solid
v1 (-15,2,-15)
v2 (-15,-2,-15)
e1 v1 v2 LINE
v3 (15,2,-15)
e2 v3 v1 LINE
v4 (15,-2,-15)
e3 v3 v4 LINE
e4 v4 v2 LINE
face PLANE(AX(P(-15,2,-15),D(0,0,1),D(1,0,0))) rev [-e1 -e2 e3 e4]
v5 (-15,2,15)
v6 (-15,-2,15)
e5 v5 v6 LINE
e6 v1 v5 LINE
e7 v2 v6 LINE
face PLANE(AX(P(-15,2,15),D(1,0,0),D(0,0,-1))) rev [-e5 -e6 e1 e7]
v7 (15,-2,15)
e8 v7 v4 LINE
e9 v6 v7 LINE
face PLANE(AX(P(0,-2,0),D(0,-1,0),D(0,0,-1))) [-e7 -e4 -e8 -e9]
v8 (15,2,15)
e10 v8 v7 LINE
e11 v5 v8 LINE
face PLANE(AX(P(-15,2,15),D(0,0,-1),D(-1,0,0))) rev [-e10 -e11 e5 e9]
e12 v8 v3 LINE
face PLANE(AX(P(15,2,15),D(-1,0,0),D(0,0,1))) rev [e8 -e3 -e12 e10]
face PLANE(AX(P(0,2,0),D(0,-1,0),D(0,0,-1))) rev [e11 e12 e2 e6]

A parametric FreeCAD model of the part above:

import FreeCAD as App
import Part
import Sketcher

doc = App.newDocument("Part")
body = doc.addObject("PartDesign::Body", "Body")

# Sketch on XZ plane
sketch1 = body.newObject("Sketcher::SketchObject", "Sketch")
sketch1.AttachmentSupport = (doc.getObject("XZ_Plane"), [""])
sketch1.MapMode = "FlatFace"
sketch1.addGeometry([
    Part.LineSegment(App.Vector(-15, -15, 0), App.Vector(-15, 15, 0)),
    Part.LineSegment(App.Vector(-15, 15, 0), App.Vector(15, 15, 0)),
    Part.LineSegment(App.Vector(15, 15, 0), App.Vector(15, -15, 0)),
    Part.LineSegment(App.Vector(15, -15, 0), App.Vector(-15, -15, 0)),
], False)
sketch1.addConstraint([
    Sketcher.Constraint("Coincident", 0, 2, 1, 1),
    Sketcher.Constraint("Coincident", 1, 2, 2, 1),
    Sketcher.Constraint("Coincident", 2, 2, 3, 1),
    Sketcher.Constraint("Coincident", 3, 2, 0, 1),
    Sketcher.Constraint("Vertical", 0),
    Sketcher.Constraint("Horizontal", 1),
    Sketcher.Constraint("Vertical", 2),
    Sketcher.Constraint("Horizontal", 3),
    Sketcher.Constraint("Symmetric", 0, 2, 2, 2, -1, 1),
    Sketcher.Constraint("Equal", 3, 0),
    Sketcher.Constraint("DistanceX", 1, 1, 1, 2, 30.0),
])
pad1 = body.newObject("PartDesign::Pad", "Pad")
pad1.Profile = sketch1
pad1.Length = 4
pad1.Midplane = True

# Sketch on XZ plane
sketch2 = body.newObject("Sketcher::SketchObject", "Sketch001")
sketch2.AttachmentSupport = (doc.getObject("XZ_Plane"), [""])
sketch2.MapMode = "FlatFace"
sketch2.AttachmentOffset = App.Placement(App.Vector(0, 0, -2), App.Rotation())
sketch2.addGeometry(Part.Circle(App.Vector(30.9, -24, 0), App.Vector(0, 0, 1), 4.25), False)
sketch2.addConstraint([
    Sketcher.Constraint("Diameter", 0, 8.5),
    Sketcher.Constraint("DistanceY", 0, 3, -1, 1, 24.0),
    Sketcher.Constraint("DistanceX", -1, 1, 0, 3, 30.9),
])
pocket1 = body.newObject("PartDesign::Pocket", "Pocket")
pocket1.Profile = sketch2
pocket1.Type = "ThroughAll"
pocket1.Reversed = True

doc.recompute()
